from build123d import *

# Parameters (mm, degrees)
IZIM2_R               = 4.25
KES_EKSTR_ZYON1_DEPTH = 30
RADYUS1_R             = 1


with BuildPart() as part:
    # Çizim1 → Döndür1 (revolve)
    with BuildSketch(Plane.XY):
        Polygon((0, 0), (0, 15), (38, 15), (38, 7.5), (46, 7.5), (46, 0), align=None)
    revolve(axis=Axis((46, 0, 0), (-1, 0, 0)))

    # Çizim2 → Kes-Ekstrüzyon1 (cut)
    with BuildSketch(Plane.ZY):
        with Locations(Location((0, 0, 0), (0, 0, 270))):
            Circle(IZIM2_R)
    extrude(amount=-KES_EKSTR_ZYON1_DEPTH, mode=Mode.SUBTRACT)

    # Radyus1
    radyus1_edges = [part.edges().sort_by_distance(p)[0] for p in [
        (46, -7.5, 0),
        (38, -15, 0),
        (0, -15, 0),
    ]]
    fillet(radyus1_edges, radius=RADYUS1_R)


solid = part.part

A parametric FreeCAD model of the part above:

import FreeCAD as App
import Part
import Sketcher
from FreeCAD import Vector
Q = App.Units.Quantity


def edges_at(feature, points):
    """Names of the edges that pass closest to the given points."""
    edges = feature.Shape.Edges
    near = lambda p: min(range(len(edges)), key=lambda i: edges[i].distToShape(Part.Vertex(*p))[0])
    return sorted({f"Edge{near(p) + 1}" for p in points})


def add_polygon(sketch, points):
    """Adds a closed chain of lines whose ends are joined by coincident constraints."""
    first, n = sketch.GeometryCount, len(points)
    for a, b in zip(points, points[1:] + points[:1]):
        sketch.addGeometry(Part.LineSegment(App.Vector(*a, 0), App.Vector(*b, 0)), False)
    for i in range(n):
        sketch.addConstraint(Sketcher.Constraint("Coincident", first + i, 2, first + (i + 1) % n, 1))

doc = App.newDocument("Part")
body = doc.addObject("PartDesign::Body", "Body")

# Sketch on XY plane
sketch1 = body.newObject("Sketcher::SketchObject", "Sketch")
sketch1.AttachmentSupport = (doc.getObject("XY_Plane"), [""])
sketch1.MapMode = "FlatFace"
add_polygon(sketch1, [(0, 15), (0, 0), (46, 0), (46, 8), (38, 8), (38, 15)])  # lines 0-5
sketch1.addConstraint([
    Sketcher.Constraint("Vertical", 0),
    Sketcher.Constraint("Horizontal", 1),
    Sketcher.Constraint("Vertical", 2),
    Sketcher.Constraint("Horizontal", 3),
    Sketcher.Constraint("Vertical", 4),
    Sketcher.Constraint("Horizontal", 5),
    Sketcher.Constraint("Coincident", 0, 2, -1, 1),
    Sketcher.Constraint("Equal", 2, 4),
    Sketcher.Constraint("DistanceX", 1, 1, 1, 2, Q("46 mm")),
    Sketcher.Constraint("DistanceX", 3, 2, 3, 1, Q("8 mm")),
    Sketcher.Constraint("DistanceY", 0, 2, 0, 1, Q("15 mm")),
])
revolution = body.newObject("PartDesign::Revolution", "Revolution")
revolution.Profile = sketch1
revolution.ReferenceAxis = (sketch1, ["H_Axis"])
revolution.Angle = 360

# Sketch on YZ plane
sketch2 = body.newObject("Sketcher::SketchObject", "Sketch001")
sketch2.AttachmentSupport = (doc.getObject("YZ_Plane"), [""])
sketch2.MapMode = "FlatFace"
sketch2.addGeometry(Part.Circle(Vector(0, 0, 0), Vector(0, 0, 1), 4.2), False)
sketch2.addConstraint([
    Sketcher.Constraint("Coincident", 0, 3, -1, 1),
    Sketcher.Constraint("Diameter", 0, Q("8.5 mm")),
])
pocket1 = body.newObject("PartDesign::Pocket", "Pocket")
pocket1.Profile = sketch2
pocket1.Length = 30
pocket1.Reversed = True
doc.recompute()

fillet = body.newObject("PartDesign::Fillet", "Fillet")
fillet.Base = (pocket1, edges_at(pocket1, [(46, -7.5, 0), (38, -15, 0), (0, -15, 0)]))
fillet.Radius = 1

doc.recompute()
